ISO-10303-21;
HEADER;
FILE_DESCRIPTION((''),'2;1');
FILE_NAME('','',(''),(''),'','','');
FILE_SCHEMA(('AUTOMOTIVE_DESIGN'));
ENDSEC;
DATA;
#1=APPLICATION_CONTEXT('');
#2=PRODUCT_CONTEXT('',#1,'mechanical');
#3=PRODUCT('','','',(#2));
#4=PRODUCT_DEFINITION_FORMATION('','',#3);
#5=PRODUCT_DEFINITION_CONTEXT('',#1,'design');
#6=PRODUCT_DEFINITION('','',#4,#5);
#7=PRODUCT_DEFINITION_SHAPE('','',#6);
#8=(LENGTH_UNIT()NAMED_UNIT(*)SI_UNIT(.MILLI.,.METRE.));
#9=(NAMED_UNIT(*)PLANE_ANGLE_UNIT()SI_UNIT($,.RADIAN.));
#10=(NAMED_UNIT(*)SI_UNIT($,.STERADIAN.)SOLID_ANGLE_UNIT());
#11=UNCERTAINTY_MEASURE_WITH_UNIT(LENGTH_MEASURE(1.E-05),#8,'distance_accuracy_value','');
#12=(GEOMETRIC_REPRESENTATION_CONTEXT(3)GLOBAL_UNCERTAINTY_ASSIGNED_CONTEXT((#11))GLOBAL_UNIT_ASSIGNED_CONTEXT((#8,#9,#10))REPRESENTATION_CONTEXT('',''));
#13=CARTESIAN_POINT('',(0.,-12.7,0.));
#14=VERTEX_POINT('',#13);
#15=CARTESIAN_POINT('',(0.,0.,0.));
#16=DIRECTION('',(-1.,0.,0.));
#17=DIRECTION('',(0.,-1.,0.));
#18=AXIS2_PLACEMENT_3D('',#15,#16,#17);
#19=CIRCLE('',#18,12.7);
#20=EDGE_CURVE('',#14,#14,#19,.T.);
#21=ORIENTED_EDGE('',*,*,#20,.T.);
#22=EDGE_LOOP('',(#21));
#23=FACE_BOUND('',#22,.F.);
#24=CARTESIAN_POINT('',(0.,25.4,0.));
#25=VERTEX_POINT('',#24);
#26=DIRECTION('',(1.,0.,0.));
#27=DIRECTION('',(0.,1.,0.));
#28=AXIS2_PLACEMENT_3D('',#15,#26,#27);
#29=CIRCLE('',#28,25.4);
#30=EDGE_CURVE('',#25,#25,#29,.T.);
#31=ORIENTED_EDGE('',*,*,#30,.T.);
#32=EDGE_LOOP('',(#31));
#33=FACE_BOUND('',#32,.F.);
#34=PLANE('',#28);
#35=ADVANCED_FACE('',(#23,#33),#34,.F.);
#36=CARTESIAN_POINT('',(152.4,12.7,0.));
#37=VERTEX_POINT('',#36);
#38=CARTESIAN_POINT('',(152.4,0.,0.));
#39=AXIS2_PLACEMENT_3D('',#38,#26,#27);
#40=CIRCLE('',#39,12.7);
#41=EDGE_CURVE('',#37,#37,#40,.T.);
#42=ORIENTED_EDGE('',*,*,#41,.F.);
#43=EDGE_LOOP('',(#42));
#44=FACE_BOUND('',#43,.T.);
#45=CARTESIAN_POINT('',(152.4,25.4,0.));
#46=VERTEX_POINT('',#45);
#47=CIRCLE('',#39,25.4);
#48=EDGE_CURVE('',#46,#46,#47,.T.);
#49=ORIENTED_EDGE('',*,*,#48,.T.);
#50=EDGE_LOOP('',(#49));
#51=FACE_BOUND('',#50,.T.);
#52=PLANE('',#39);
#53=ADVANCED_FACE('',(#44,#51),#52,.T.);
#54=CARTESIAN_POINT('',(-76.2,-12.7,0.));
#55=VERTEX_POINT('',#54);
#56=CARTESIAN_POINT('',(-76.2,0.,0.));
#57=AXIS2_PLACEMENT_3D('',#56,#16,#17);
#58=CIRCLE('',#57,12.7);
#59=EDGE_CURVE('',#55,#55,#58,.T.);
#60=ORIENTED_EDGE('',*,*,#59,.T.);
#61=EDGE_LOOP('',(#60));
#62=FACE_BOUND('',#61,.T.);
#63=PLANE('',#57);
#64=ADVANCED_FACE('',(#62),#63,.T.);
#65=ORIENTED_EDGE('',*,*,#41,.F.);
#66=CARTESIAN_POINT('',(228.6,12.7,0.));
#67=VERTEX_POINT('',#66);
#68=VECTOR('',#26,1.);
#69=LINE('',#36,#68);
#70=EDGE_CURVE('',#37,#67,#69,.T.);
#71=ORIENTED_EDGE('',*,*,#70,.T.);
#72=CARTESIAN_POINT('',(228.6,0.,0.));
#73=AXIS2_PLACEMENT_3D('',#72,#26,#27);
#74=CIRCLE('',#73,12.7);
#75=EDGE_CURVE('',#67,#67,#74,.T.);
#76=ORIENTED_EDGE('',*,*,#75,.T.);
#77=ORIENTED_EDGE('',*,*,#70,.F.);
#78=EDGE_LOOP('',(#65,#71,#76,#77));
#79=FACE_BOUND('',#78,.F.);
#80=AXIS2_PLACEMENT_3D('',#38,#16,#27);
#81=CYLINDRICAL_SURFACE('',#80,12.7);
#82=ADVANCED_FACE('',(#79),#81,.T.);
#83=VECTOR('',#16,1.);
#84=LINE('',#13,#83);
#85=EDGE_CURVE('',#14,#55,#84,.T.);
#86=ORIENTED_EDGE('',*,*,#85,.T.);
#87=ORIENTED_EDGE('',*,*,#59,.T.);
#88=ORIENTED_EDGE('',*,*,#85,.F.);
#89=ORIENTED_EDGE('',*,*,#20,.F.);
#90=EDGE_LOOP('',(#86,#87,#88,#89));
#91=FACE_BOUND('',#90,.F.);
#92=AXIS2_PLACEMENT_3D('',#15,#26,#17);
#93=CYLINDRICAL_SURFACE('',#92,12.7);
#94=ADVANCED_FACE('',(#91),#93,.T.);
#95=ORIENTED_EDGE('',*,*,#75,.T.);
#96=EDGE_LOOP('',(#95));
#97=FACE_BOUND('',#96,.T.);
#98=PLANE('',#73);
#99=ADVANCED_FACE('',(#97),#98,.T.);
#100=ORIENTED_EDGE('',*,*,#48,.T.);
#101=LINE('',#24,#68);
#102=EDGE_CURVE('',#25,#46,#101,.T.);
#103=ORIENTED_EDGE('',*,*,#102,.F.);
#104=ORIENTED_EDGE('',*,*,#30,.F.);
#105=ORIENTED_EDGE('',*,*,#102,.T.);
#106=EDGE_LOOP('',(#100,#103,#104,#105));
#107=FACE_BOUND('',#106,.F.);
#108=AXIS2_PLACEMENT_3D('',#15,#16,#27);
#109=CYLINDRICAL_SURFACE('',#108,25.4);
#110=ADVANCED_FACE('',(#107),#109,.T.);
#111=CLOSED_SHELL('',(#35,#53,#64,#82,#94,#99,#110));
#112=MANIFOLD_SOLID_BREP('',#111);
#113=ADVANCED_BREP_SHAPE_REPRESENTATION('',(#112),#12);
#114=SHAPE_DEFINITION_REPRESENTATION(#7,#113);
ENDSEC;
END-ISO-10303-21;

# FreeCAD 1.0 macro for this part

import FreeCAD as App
import Part
import Sketcher
Q = App.Units.Quantity

doc = App.newDocument("Part")
body = doc.addObject("PartDesign::Body", "Body")

# Sketch on YZ plane
sketch1 = body.newObject("Sketcher::SketchObject", "Sketch")
sketch1.AttachmentSupport = (doc.getObject("YZ_Plane"), [""])
sketch1.MapMode = "FlatFace"
sketch1.addGeometry(Part.Circle(App.Vector(0, 0, 0), App.Vector(0, 0, 1), 25), False)
sketch1.addConstraint([
    Sketcher.Constraint("Coincident", 0, 3, -1, 1),
    Sketcher.Constraint("Diameter", 0, Q("2 in")),
])
pad1 = body.newObject("PartDesign::Pad", "Pad")
pad1.Profile = sketch1
pad1.Length = Q("6 in")

# Sketch on YZ plane
sketch2 = body.newObject("Sketcher::SketchObject", "Sketch001")
sketch2.AttachmentSupport = (doc.getObject("YZ_Plane"), [""])
sketch2.MapMode = "FlatFace"
sketch2.addGeometry(Part.Circle(App.Vector(0, 0, 0), App.Vector(0, 0, 1), 13), False)
sketch2.addConstraint([
    Sketcher.Constraint("Coincident", 0, 3, -1, 1),
    Sketcher.Constraint("Diameter", 0, Q("1 in")),
])
pad2 = body.newObject("PartDesign::Pad", "Pad001")
pad2.Profile = sketch2
pad2.Length = Q("3 in")
pad2.Reversed = True

# Sketch on YZ plane
sketch3 = body.newObject("Sketcher::SketchObject", "Sketch002")
sketch3.AttachmentSupport = (doc.getObject("YZ_Plane"), [""])
sketch3.MapMode = "FlatFace"
sketch3.AttachmentOffset = App.Placement(App.Vector(0, 0, 6 * 25.4), App.Rotation())
sketch3.addGeometry(Part.Circle(App.Vector(0, 0, 0), App.Vector(0, 0, 1), 13), False)
sketch3.addConstraint([
    Sketcher.Constraint("Coincident", 0, 3, -1, 1),
    Sketcher.Constraint("Diameter", 0, Q("1 in")),
])
pad3 = body.newObject("PartDesign::Pad", "Pad002")
pad3.Profile = sketch3
pad3.Length = Q("3 in")

doc.recompute()
